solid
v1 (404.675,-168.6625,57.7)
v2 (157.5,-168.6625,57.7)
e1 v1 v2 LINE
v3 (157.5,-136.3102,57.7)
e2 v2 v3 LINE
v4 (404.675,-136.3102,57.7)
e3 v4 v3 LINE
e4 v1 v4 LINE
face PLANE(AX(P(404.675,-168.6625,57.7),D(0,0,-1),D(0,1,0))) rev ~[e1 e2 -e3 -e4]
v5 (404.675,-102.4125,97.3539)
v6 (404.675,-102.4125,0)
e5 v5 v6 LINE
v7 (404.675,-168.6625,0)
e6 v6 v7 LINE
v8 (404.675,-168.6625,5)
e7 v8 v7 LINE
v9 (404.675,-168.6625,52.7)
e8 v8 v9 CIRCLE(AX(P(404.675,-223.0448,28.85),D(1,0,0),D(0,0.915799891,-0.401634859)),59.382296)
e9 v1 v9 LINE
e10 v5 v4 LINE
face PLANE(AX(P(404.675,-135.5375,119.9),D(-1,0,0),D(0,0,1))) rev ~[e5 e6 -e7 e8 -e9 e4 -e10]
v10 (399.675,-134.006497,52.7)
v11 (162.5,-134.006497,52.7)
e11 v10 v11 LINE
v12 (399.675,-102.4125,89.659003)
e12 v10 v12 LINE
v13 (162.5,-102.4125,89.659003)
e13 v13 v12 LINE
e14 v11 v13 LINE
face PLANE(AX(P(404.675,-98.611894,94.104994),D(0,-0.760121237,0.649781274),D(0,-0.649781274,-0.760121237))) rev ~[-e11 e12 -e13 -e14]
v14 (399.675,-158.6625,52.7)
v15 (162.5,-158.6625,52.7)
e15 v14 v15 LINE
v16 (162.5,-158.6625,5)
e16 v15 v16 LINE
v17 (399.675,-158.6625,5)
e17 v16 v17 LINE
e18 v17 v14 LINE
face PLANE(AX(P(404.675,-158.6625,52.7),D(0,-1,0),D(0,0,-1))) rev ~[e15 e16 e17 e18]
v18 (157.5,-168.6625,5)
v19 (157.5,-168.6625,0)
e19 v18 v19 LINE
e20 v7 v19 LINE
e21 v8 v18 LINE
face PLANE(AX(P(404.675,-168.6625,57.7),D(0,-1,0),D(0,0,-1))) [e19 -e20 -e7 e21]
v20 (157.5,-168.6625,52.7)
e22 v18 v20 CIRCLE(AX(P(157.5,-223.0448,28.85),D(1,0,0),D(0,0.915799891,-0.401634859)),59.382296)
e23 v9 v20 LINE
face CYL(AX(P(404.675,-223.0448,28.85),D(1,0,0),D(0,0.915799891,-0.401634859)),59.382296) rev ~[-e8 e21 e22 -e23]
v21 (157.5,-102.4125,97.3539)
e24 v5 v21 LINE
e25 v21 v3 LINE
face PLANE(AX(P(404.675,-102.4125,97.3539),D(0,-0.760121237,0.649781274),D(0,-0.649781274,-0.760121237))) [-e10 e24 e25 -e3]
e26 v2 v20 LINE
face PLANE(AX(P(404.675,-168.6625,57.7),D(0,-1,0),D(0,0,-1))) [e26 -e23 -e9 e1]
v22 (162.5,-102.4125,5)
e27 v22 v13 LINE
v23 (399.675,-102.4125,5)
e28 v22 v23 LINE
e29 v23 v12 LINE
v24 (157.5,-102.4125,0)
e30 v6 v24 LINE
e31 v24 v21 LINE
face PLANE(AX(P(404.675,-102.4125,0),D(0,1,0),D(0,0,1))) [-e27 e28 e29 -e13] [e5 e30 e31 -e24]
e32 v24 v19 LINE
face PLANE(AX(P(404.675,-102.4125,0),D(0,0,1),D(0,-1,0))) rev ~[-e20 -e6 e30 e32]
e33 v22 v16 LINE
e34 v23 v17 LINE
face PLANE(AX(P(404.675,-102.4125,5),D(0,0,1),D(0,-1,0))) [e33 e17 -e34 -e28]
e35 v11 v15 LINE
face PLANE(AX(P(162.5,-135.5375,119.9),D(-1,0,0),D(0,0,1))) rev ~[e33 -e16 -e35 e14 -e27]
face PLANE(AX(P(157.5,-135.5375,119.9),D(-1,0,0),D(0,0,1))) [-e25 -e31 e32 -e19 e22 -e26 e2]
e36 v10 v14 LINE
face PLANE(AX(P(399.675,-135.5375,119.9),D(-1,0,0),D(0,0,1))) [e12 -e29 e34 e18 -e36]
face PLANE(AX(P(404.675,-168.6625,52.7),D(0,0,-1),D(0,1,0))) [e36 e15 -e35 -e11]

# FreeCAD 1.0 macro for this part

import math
import FreeCAD as App
import Part
import Sketcher


def faces_at(feature, points):
    """Names of the faces that lie closest to the given points."""
    faces = feature.Shape.Faces
    near = lambda p: min(range(len(faces)), key=lambda i: faces[i].distToShape(Part.Vertex(*p))[0])
    return sorted({f"Face{near(p) + 1}" for p in points})


def add_polygon(sketch, points):
    """Adds a closed chain of lines whose ends are joined by coincident constraints."""
    first, n = sketch.GeometryCount, len(points)
    for a, b in zip(points, points[1:] + points[:1]):
        sketch.addGeometry(Part.LineSegment(App.Vector(*a, 0), App.Vector(*b, 0)), False)
    for i in range(n):
        sketch.addConstraint(Sketcher.Constraint("Coincident", first + i, 2, first + (i + 1) % n, 1))

doc = App.newDocument("Part")
body = doc.addObject("PartDesign::Body", "Body")

# Sketch on YZ plane
sketch1 = body.newObject("Sketcher::SketchObject", "Sketch")
sketch1.AttachmentSupport = (doc.getObject("YZ_Plane"), [""])
sketch1.MapMode = "FlatFace"
sketch1.AttachmentOffset = App.Placement(App.Vector(0, 0, 404.675), App.Rotation())
add_polygon(sketch1, [(-102, 0), (-169, 0), (-169, 58), (-136, 58), (-102, 97)])  # lines 0-4
sketch1.addConstraint([
    Sketcher.Constraint("Horizontal", 0),
    Sketcher.Constraint("Vertical", 1),
    Sketcher.Constraint("Horizontal", 2),
    Sketcher.Constraint("Vertical", 4),
    Sketcher.Constraint("PointOnObject", 0, 2, -1),
    Sketcher.Constraint("DistanceY", 1, 1, 1, 2, 57.7),
    Sketcher.Constraint("DistanceX", 0, 2, 0, 1, 66.25),
    Sketcher.Constraint("DistanceY", 4, 2, 4, 1, 97.354),
    Sketcher.Constraint("DistanceX", 2, 1, 2, 2, 32.3523),
    Sketcher.Constraint("DistanceX", 0, 2, -1, 1, 168.6625),
])
pad1 = body.newObject("PartDesign::Pad", "Pad")
pad1.Profile = sketch1
pad1.Length = 247.175
pad1.Reversed = True
doc.recompute()

thickness = body.newObject("PartDesign::Thickness", "Thickness")
thickness.Base = (pad1, faces_at(pad1, [(322.283, -102.412, 64.903)]))
thickness.Value = 5
thickness.Reversed = True
thickness.Join = "Intersection"

# Sketch on YZ plane
sketch2 = body.newObject("Sketcher::SketchObject", "Sketch001")
sketch2.AttachmentSupport = (doc.getObject("YZ_Plane"), [""])
sketch2.MapMode = "FlatFace"
sketch2.AttachmentOffset = App.Placement(App.Vector(0, 0, 404.675), App.Rotation())
add_polygon(sketch2, [(-164, 53), (-164, 5), (-159, 5), (-159, 53)])  # lines 0-3
sketch2.addConstraint([
    Sketcher.Constraint("Vertical", 0),
    Sketcher.Constraint("Horizontal", 1),
    Sketcher.Constraint("Vertical", 2),
    Sketcher.Constraint("Horizontal", 3),
    Sketcher.Constraint("DistanceX", 1, 1, 1, 2, 5.0),
    Sketcher.Constraint("DistanceY", 0, 2, 0, 1, 47.8),
    Sketcher.Constraint("DistanceY", -1, 1, 0, 2, 4.9),
    Sketcher.Constraint("DistanceX", 0, 2, -1, 1, 163.6625),
])
pad2 = body.newObject("PartDesign::Pad", "Pad001")
pad2.Profile = sketch2
pad2.Length = 242.175
pad2.Reversed = True

# Sketch on YZ plane
sketch3 = body.newObject("Sketcher::SketchObject", "Sketch002")
sketch3.AttachmentSupport = (doc.getObject("YZ_Plane"), [""])
sketch3.MapMode = "FlatFace"
sketch3.AttachmentOffset = App.Placement(App.Vector(0, 0, 404.675), App.Rotation())
sketch3.addGeometry([
    Part.LineSegment(App.Vector(-169, 53, 0), App.Vector(-169, 5, 0)),
    Part.ArcOfCircle(Part.Circle(App.Vector(-223, 29, 0), App.Vector(0, 0, 1), 59), math.radians(-24), math.radians(24)),
], False)
sketch3.addConstraint([
    Sketcher.Constraint("Coincident", 0, 1, 1, 2),
    Sketcher.Constraint("Coincident", 1, 1, 0, 2),
    Sketcher.Constraint("Vertical", 0),
    Sketcher.Constraint("DistanceY", -1, 1, 1, 1, 5.0),
    Sketcher.Constraint("DistanceY", 0, 2, 0, 1, 47.7),
    Sketcher.Constraint("Radius", 1, 59.3823),
    Sketcher.Constraint("DistanceX", 1, 3, -1, 1, 223.0448),
])
pocket1 = body.newObject("PartDesign::Pocket", "Pocket")
pocket1.Profile = sketch3
pocket1.Type = "ThroughAll"

doc.recompute()
